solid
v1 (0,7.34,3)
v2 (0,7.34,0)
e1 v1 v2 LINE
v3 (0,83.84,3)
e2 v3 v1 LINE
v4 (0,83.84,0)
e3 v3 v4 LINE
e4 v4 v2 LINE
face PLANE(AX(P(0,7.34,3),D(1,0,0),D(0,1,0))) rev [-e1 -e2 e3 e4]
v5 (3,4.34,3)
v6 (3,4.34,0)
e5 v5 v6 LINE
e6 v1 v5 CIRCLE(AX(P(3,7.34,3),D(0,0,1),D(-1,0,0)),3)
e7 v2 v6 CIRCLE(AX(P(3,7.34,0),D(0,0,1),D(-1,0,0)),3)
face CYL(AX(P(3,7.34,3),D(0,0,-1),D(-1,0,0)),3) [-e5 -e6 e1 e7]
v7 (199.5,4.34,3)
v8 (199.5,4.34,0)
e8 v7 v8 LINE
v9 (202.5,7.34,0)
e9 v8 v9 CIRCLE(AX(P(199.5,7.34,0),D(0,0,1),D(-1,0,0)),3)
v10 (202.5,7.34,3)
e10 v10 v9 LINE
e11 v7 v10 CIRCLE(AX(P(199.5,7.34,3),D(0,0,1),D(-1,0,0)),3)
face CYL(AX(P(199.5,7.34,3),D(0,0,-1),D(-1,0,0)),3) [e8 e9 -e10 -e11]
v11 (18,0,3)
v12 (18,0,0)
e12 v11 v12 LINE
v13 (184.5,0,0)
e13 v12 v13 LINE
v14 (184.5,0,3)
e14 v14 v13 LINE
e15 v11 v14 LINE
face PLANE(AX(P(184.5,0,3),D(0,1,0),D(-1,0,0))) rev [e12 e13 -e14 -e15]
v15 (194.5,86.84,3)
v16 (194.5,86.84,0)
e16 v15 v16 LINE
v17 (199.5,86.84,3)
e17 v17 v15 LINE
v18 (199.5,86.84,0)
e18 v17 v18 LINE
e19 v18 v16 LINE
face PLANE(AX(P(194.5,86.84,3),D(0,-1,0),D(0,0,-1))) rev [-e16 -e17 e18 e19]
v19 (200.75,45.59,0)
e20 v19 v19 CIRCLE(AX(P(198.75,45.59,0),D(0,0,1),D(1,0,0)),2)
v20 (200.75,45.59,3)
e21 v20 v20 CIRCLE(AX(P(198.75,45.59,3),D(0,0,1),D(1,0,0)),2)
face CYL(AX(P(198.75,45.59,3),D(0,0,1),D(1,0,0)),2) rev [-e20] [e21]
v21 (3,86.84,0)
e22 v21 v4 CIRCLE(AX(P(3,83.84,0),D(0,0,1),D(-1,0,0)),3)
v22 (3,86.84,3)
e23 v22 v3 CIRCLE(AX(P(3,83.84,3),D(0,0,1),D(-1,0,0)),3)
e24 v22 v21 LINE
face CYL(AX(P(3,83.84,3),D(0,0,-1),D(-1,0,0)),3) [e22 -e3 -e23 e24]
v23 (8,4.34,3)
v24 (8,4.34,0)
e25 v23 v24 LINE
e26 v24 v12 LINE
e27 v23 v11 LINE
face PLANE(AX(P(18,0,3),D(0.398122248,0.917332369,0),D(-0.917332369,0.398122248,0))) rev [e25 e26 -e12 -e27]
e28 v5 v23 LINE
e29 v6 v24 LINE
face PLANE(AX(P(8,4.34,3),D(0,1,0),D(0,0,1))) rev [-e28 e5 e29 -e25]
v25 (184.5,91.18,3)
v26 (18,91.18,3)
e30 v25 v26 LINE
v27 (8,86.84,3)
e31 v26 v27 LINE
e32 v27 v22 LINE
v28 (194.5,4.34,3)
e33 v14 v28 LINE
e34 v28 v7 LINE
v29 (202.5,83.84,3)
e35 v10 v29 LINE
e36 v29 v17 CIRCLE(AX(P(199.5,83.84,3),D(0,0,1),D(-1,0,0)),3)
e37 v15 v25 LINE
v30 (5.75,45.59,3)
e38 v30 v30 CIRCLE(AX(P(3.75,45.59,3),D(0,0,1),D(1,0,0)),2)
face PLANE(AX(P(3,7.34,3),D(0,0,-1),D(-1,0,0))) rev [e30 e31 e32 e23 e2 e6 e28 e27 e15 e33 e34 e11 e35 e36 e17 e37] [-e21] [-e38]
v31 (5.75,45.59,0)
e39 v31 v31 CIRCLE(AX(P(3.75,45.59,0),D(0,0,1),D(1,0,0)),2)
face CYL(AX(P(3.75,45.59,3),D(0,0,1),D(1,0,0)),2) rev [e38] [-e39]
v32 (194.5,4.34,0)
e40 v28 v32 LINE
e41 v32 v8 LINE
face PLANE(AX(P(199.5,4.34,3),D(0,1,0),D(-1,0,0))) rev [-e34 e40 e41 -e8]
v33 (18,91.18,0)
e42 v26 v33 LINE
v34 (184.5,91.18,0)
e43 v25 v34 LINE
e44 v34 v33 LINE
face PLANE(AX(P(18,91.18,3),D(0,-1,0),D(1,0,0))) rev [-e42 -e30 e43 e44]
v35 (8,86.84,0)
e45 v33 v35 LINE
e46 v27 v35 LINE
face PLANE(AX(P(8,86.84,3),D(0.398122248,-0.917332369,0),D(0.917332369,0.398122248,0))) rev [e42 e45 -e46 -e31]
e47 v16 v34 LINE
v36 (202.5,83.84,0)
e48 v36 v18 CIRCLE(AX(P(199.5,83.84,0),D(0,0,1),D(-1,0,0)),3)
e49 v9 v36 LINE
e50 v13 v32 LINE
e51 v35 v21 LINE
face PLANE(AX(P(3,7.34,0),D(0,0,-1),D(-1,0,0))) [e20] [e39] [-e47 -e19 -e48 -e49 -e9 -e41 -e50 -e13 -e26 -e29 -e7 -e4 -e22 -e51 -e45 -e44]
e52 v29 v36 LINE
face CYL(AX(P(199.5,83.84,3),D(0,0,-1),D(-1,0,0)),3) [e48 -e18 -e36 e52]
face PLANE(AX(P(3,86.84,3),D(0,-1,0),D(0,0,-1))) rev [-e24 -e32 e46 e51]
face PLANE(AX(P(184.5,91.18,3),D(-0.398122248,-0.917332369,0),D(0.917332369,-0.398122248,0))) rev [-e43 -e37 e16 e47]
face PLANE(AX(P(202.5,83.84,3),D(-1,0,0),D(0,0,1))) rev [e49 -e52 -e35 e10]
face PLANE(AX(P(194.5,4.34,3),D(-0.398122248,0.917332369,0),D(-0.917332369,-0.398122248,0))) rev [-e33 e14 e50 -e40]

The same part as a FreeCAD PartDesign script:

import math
import FreeCAD as App
import Part
import Sketcher

doc = App.newDocument("Part")
body = doc.addObject("PartDesign::Body", "Body")

# Sketch on XY plane
sketch1 = body.newObject("Sketcher::SketchObject", "Sketch")
sketch1.AttachmentSupport = (doc.getObject("XY_Plane"), [""])
sketch1.MapMode = "FlatFace"
sketch1.addGeometry([
    Part.LineSegment(App.Vector(0, 83.8, 0), App.Vector(0, 7.3, 0)),  # 0
    Part.ArcOfCircle(Part.Circle(App.Vector(3, 7.3, 0), App.Vector(0, 0, 1), 3), math.radians(180), math.radians(270)),  # 1
    Part.LineSegment(App.Vector(3, 4.3, 0), App.Vector(8, 4.3, 0)),  # 2
    Part.LineSegment(App.Vector(8, 4.3, 0), App.Vector(18, 0, 0)),  # 3
    Part.LineSegment(App.Vector(18, 0, 0), App.Vector(184.5, 0, 0)),  # 4
    Part.LineSegment(App.Vector(184.5, 0, 0), App.Vector(194.5, 4.3, 0)),  # 5
    Part.LineSegment(App.Vector(194.5, 4.3, 0), App.Vector(199.5, 4.3, 0)),  # 6
    Part.ArcOfCircle(Part.Circle(App.Vector(199.5, 7.3, 0), App.Vector(0, 0, 1), 3), math.radians(-90), math.radians(0)),  # 7
    Part.LineSegment(App.Vector(202.5, 7.3, 0), App.Vector(202.5, 83.8, 0)),  # 8
    Part.ArcOfCircle(Part.Circle(App.Vector(199.5, 83.8, 0), App.Vector(0, 0, 1), 3), math.radians(0), math.radians(90)),  # 9
    Part.LineSegment(App.Vector(199.5, 86.8, 0), App.Vector(194.5, 86.8, 0)),  # 10
    Part.LineSegment(App.Vector(194.5, 86.8, 0), App.Vector(184.5, 91.2, 0)),  # 11
    Part.LineSegment(App.Vector(184.5, 91.2, 0), App.Vector(18, 91.2, 0)),  # 12
    Part.LineSegment(App.Vector(18, 91.2, 0), App.Vector(8, 86.8, 0)),  # 13
    Part.LineSegment(App.Vector(8, 86.8, 0), App.Vector(3, 86.8, 0)),  # 14
    Part.ArcOfCircle(Part.Circle(App.Vector(3, 83.8, 0), App.Vector(0, 0, 1), 3), math.radians(90), math.radians(180)),  # 15
], False)
sketch1.addConstraint([
    Sketcher.Constraint("Tangent", 0, 2, 1, 1),
    Sketcher.Constraint("Tangent", 1, 2, 2, 1),
    Sketcher.Constraint("Coincident", 2, 2, 3, 1),
    Sketcher.Constraint("Coincident", 3, 2, 4, 1),
    Sketcher.Constraint("Coincident", 4, 2, 5, 1),
    Sketcher.Constraint("Coincident", 5, 2, 6, 1),
    Sketcher.Constraint("Tangent", 6, 2, 7, 1),
    Sketcher.Constraint("Tangent", 7, 2, 8, 1),
    Sketcher.Constraint("Tangent", 8, 2, 9, 1),
    Sketcher.Constraint("Tangent", 9, 2, 10, 1),
    Sketcher.Constraint("Coincident", 10, 2, 11, 1),
    Sketcher.Constraint("Coincident", 11, 2, 12, 1),
    Sketcher.Constraint("Coincident", 12, 2, 13, 1),
    Sketcher.Constraint("Coincident", 13, 2, 14, 1),
    Sketcher.Constraint("Tangent", 14, 2, 15, 1),
    Sketcher.Constraint("Tangent", 15, 2, 0, 1),
    Sketcher.Constraint("Vertical", 0),
    Sketcher.Constraint("Horizontal", 2),
    Sketcher.Constraint("Horizontal", 4),
    Sketcher.Constraint("Horizontal", 6),
    Sketcher.Constraint("Vertical", 8),
    Sketcher.Constraint("Horizontal", 10),
    Sketcher.Constraint("Horizontal", 12),
    Sketcher.Constraint("Horizontal", 14),
    Sketcher.Constraint("Equal", 1, 7),
    Sketcher.Constraint("Equal", 7, 9),
    Sketcher.Constraint("Equal", 9, 15),
    Sketcher.Constraint("PointOnObject", 0, 2, -2),
    Sketcher.Constraint("PointOnObject", 3, 2, -1),
    Sketcher.Constraint("Parallel", 3, 11),
    Sketcher.Constraint("Parallel", 5, 13),
    Sketcher.Constraint("Horizontal", 1, 3, 7, 3),
    Sketcher.Constraint("Horizontal", 9, 3, 15, 3),
    Sketcher.Constraint("Vertical", 5, 2, 10, 2),
    Sketcher.Constraint("Vertical", 4, 2, 11, 2),
    Sketcher.Constraint("Vertical", 3, 2, 12, 2),
    Sketcher.Constraint("Vertical", 2, 2, 13, 2),
    Sketcher.Constraint("Equal", 2, 6),
    Sketcher.Constraint("Radius", 1, 3.0),
    Sketcher.Constraint("DistanceX", 2, 1, 2, 2, 5.0),
    Sketcher.Constraint("DistanceX", 4, 1, 4, 2, 166.5),
    Sketcher.Constraint("DistanceY", 0, 2, 0, 1, 76.5),
    Sketcher.Constraint("DistanceX", -1, 1, 3, 2, 18.0),
    Sketcher.Constraint("DistanceY", -1, 1, 1, 3, 7.34),
])
pad1 = body.newObject("PartDesign::Pad", "Pad")
pad1.Profile = sketch1
pad1.Length = 3

# Sketch on XY plane
sketch2 = body.newObject("Sketcher::SketchObject", "Sketch001")
sketch2.AttachmentSupport = (doc.getObject("XY_Plane"), [""])
sketch2.MapMode = "FlatFace"
sketch2.AttachmentOffset = App.Placement(App.Vector(0, 0, 3), App.Rotation())
sketch2.addGeometry([
    Part.Circle(App.Vector(3.8, 45.6, 0), App.Vector(0, 0, 1), 2),
    Part.Circle(App.Vector(198.8, 45.6, 0), App.Vector(0, 0, 1), 2),
], False)
sketch2.addConstraint([
    Sketcher.Constraint("Equal", 0, 1),
    Sketcher.Constraint("Horizontal", 0, 3, 1, 3),
    Sketcher.Constraint("Diameter", 0, 4.0),
    Sketcher.Constraint("DistanceX", 0, 3, 1, 3, 195.0),
    Sketcher.Constraint("DistanceX", -1, 1, 0, 3, 3.75),
    Sketcher.Constraint("DistanceY", -1, 1, 0, 3, 45.59),
])
doc.recompute()
hole = body.newObject("PartDesign::Hole", "Hole")
hole.Profile = sketch2
hole.ThreadType = "None"
hole.Diameter = 4
hole.DepthType = "ThroughAll"

doc.recompute()
